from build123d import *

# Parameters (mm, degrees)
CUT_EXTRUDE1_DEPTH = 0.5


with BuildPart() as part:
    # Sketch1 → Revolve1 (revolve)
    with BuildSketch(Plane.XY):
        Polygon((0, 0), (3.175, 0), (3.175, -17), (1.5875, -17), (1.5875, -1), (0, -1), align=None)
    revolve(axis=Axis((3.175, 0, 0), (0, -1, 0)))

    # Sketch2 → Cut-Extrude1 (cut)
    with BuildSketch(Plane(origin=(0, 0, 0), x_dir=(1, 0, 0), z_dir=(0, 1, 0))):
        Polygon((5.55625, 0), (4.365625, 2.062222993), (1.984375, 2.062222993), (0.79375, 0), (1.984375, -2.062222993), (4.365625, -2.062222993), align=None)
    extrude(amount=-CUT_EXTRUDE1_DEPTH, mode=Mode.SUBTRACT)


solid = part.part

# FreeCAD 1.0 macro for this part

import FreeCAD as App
import Part
import Sketcher

V = App.Vector
Q = App.Units.Quantity

doc = App.newDocument("Part")
body = doc.addObject("PartDesign::Body", "Body")

sketch1 = body.newObject("Sketcher::SketchObject", "Sketch")
sketch1.AttachmentSupport = (doc.getObject("XY_Plane"), [""])
sketch1.MapMode = "FlatFace"
sketch1.addGeometry(Part.LineSegment(V(3.175, 0, 0), V(0, 0, 0)), False)
sketch1.addGeometry(Part.LineSegment(V(0, 0, 0), V(0, -1, 0)), False)
sketch1.addGeometry(Part.LineSegment(V(0, -1, 0), V(1.5875, -1, 0)), False)
sketch1.addGeometry(Part.LineSegment(V(1.5875, -1, 0), V(1.5875, -17, 0)), False)
sketch1.addGeometry(Part.LineSegment(V(1.5875, -17, 0), V(3.175, -17, 0)), False)
sketch1.addGeometry(Part.LineSegment(V(3.175, -17, 0), V(3.175, 0, 0)), False)
sketch1.addGeometry(Part.LineSegment(V(3.175, 0, 0), V(3.175, -17, 0)), True)
sketch1.addConstraint(Sketcher.Constraint("Coincident", 0, 2, 1, 1))
sketch1.addConstraint(Sketcher.Constraint("Coincident", 1, 2, 2, 1))
sketch1.addConstraint(Sketcher.Constraint("Coincident", 2, 2, 3, 1))
sketch1.addConstraint(Sketcher.Constraint("Coincident", 3, 2, 4, 1))
sketch1.addConstraint(Sketcher.Constraint("Coincident", 4, 2, 5, 1))
sketch1.addConstraint(Sketcher.Constraint("Coincident", 5, 2, 0, 1))
sketch1.addConstraint(Sketcher.Constraint("Horizontal", 0))
sketch1.addConstraint(Sketcher.Constraint("Vertical", 1))
sketch1.addConstraint(Sketcher.Constraint("Horizontal", 2))
sketch1.addConstraint(Sketcher.Constraint("Vertical", 3))
sketch1.addConstraint(Sketcher.Constraint("Horizontal", 4))
sketch1.addConstraint(Sketcher.Constraint("Vertical", 5))
sketch1.addConstraint(Sketcher.Constraint("Vertical", 6))
sketch1.addConstraint(Sketcher.Constraint("Coincident", 0, 2, -1, 1))
sketch1.addConstraint(Sketcher.Constraint("Coincident", 6, 1, 5, 2))
sketch1.addConstraint(Sketcher.Constraint("Horizontal", 3, 2, 6, 2))
sketch1.addConstraint(Sketcher.Constraint("Equal", 2, 4))
sketch1.addConstraint(Sketcher.Constraint("DistanceY", 1, 2, 1, 1, Q("1 mm")))
sketch1.addConstraint(Sketcher.Constraint("DistanceY", 3, 2, 3, 1, Q("16 mm")))
sketch1.addConstraint(Sketcher.Constraint("DistanceX", 0, 2, 0, 1, Q("3.175 mm")))
revolution = body.newObject("PartDesign::Revolution", "Revolution")
revolution.Profile = sketch1
revolution.ReferenceAxis = (sketch1, ["Axis0"])
revolution.Angle = 360

sketch2 = body.newObject("Sketcher::SketchObject", "Sketch001")
sketch2.AttachmentSupport = (doc.getObject("XZ_Plane"), [""])
sketch2.MapMode = "FlatFace"
sketch2.addGeometry(Part.LineSegment(V(5.55625, 0, 0), V(4.365625, -2.062223, 0)), False)
sketch2.addGeometry(Part.LineSegment(V(4.365625, -2.062223, 0), V(1.984375, -2.062223, 0)), False)
sketch2.addGeometry(Part.LineSegment(V(1.984375, -2.062223, 0), V(0.79375, 0, 0)), False)
sketch2.addGeometry(Part.LineSegment(V(0.79375, 0, 0), V(1.984375, 2.062223, 0)), False)
sketch2.addGeometry(Part.LineSegment(V(1.984375, 2.062223, 0), V(4.365625, 2.062223, 0)), False)
sketch2.addGeometry(Part.LineSegment(V(4.365625, 2.062223, 0), V(5.55625, 0, 0)), False)
sketch2.addConstraint(Sketcher.Constraint("Coincident", 0, 2, 1, 1))
sketch2.addConstraint(Sketcher.Constraint("Coincident", 1, 2, 2, 1))
sketch2.addConstraint(Sketcher.Constraint("Coincident", 2, 2, 3, 1))
sketch2.addConstraint(Sketcher.Constraint("Coincident", 3, 2, 4, 1))
sketch2.addConstraint(Sketcher.Constraint("Coincident", 4, 2, 5, 1))
sketch2.addConstraint(Sketcher.Constraint("Coincident", 5, 2, 0, 1))
sketch2.addConstraint(Sketcher.Constraint("Horizontal", 1))
sketch2.addConstraint(Sketcher.Constraint("Horizontal", 4))
sketch2.addConstraint(Sketcher.Constraint("Symmetric", 1, 2, 3, 2, -1))
sketch2.addConstraint(Sketcher.Constraint("PointOnObject", 2, 2, -1))
sketch2.addConstraint(Sketcher.Constraint("PointOnObject", 5, 2, -1))
sketch2.addConstraint(Sketcher.Constraint("Parallel", 0, 3))
sketch2.addConstraint(Sketcher.Constraint("Parallel", 2, 5))
sketch2.addConstraint(Sketcher.Constraint("Angle", 0, Q("-120 deg")))
sketch2.addConstraint(Sketcher.Constraint("DistanceX", 1, 2, 1, 1, Q("2.38125 mm")))
sketch2.addConstraint(Sketcher.Constraint("DistanceX", 2, 2, 5, 2, Q("4.7625 mm")))
sketch2.addConstraint(Sketcher.Constraint("DistanceX", -1, 1, 2, 2, Q("0.79375 mm")))
pocket1 = body.newObject("PartDesign::Pocket", "Pocket")
pocket1.Profile = sketch2
pocket1.Length = 0.5
pocket1.Reversed = True

doc.recompute()
